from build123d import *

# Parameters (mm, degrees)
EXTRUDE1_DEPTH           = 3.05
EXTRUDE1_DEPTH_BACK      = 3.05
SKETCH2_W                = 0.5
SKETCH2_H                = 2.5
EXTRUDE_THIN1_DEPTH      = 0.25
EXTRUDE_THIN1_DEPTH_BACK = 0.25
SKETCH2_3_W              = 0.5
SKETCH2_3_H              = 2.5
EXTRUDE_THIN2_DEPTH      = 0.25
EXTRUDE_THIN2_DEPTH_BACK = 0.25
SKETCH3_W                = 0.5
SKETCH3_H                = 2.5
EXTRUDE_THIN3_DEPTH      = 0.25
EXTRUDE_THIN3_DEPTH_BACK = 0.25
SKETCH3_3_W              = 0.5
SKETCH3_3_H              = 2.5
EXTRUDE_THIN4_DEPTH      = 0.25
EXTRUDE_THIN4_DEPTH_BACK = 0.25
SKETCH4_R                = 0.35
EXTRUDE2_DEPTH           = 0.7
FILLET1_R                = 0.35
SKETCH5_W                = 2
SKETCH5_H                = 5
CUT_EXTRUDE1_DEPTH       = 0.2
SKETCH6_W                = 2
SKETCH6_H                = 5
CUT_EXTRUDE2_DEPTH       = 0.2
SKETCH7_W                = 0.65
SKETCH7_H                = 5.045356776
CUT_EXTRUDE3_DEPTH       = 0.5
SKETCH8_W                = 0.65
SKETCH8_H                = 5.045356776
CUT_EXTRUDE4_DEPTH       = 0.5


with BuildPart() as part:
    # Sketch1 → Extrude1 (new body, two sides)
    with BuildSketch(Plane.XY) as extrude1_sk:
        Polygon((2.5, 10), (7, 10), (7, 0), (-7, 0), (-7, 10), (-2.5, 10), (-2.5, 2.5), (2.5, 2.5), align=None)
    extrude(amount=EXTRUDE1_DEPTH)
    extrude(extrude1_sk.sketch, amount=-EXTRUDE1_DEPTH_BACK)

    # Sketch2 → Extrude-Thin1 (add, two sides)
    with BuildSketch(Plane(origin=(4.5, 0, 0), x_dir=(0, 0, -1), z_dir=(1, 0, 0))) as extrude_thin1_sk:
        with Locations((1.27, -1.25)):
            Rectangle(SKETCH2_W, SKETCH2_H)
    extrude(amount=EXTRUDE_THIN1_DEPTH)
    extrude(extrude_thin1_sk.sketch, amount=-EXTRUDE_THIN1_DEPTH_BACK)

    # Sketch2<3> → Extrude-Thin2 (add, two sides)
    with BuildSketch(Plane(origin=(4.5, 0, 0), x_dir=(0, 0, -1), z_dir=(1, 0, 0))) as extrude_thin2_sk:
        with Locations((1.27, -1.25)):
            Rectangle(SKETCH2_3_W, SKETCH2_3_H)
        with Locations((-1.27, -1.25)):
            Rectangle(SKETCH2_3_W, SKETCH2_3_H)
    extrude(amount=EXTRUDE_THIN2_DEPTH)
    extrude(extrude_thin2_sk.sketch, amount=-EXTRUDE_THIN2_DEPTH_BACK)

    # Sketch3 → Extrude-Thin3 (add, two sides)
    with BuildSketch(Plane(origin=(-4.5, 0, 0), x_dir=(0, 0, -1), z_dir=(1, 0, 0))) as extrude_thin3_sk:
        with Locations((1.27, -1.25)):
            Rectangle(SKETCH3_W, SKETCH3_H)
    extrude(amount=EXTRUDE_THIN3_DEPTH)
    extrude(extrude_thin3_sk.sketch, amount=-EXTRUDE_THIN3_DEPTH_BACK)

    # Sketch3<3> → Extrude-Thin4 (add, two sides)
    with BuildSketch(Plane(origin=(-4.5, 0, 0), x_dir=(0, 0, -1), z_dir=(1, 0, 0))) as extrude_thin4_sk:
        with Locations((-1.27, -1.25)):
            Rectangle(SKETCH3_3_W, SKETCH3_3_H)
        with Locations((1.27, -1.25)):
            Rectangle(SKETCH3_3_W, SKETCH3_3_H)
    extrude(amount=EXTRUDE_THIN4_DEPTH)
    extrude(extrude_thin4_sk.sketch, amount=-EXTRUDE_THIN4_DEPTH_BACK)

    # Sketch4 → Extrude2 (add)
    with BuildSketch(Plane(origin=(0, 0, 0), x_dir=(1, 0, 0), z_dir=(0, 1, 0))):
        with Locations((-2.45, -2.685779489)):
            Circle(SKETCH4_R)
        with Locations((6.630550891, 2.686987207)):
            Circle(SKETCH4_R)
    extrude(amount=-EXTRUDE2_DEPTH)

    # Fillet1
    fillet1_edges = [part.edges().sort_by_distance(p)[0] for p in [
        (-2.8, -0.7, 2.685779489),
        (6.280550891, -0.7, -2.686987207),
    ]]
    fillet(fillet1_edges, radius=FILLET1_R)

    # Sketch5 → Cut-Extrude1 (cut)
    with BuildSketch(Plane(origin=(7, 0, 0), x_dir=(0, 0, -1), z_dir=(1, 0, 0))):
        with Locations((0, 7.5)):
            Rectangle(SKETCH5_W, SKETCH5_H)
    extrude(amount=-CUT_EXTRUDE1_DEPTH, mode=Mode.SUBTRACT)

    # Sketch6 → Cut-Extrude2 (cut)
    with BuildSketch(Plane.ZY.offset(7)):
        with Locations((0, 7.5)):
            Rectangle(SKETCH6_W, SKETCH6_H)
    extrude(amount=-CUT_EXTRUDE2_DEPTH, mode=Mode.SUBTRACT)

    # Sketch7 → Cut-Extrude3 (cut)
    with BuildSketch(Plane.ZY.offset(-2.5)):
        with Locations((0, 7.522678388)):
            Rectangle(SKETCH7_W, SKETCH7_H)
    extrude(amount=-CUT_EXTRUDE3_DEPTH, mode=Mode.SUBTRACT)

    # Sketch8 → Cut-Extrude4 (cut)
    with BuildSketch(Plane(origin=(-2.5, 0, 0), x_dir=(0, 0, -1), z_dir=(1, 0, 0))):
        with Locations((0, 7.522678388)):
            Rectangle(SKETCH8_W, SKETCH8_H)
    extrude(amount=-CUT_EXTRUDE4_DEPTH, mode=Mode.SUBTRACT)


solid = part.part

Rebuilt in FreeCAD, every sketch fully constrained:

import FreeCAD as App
import Part
import Sketcher
from FreeCAD import Vector
Q = App.Units.Quantity


def edges_at(feature, points):
    """Names of the edges that pass closest to the given points."""
    edges = feature.Shape.Edges
    near = lambda p: min(range(len(edges)), key=lambda i: edges[i].distToShape(Part.Vertex(*p))[0])
    return sorted({f"Edge{near(p) + 1}" for p in points})

doc = App.newDocument("Part")
body = doc.addObject("PartDesign::Body", "Body")

sketch1 = body.newObject("Sketcher::SketchObject", "Sketch")
sketch1.AttachmentSupport = (doc.getObject("XY_Plane"), [""])
sketch1.MapMode = "FlatFace"
sketch1.addGeometry(Part.LineSegment(Vector(7, 10, 0), Vector(2.5, 10, 0)), False)
sketch1.addGeometry(Part.LineSegment(Vector(2.5, 10, 0), Vector(2.5, 2.5, 0)), False)
sketch1.addGeometry(Part.LineSegment(Vector(2.5, 2.5, 0), Vector(-2.5, 2.5, 0)), False)
sketch1.addGeometry(Part.LineSegment(Vector(-2.5, 2.5, 0), Vector(-2.5, 10, 0)), False)
sketch1.addGeometry(Part.LineSegment(Vector(-2.5, 10, 0), Vector(-7, 10, 0)), False)
sketch1.addGeometry(Part.LineSegment(Vector(-7, 10, 0), Vector(-7, 0, 0)), False)
sketch1.addGeometry(Part.LineSegment(Vector(-7, 0, 0), Vector(7, 0, 0)), False)
sketch1.addGeometry(Part.LineSegment(Vector(7, 0, 0), Vector(7, 10, 0)), False)
sketch1.addConstraint(Sketcher.Constraint("Coincident", 0, 2, 1, 1))
sketch1.addConstraint(Sketcher.Constraint("Coincident", 1, 2, 2, 1))
sketch1.addConstraint(Sketcher.Constraint("Coincident", 2, 2, 3, 1))
sketch1.addConstraint(Sketcher.Constraint("Coincident", 3, 2, 4, 1))
sketch1.addConstraint(Sketcher.Constraint("Coincident", 4, 2, 5, 1))
sketch1.addConstraint(Sketcher.Constraint("Coincident", 5, 2, 6, 1))
sketch1.addConstraint(Sketcher.Constraint("Coincident", 6, 2, 7, 1))
sketch1.addConstraint(Sketcher.Constraint("Coincident", 7, 2, 0, 1))
sketch1.addConstraint(Sketcher.Constraint("Horizontal", 0))
sketch1.addConstraint(Sketcher.Constraint("Vertical", 1))
sketch1.addConstraint(Sketcher.Constraint("Horizontal", 2))
sketch1.addConstraint(Sketcher.Constraint("Vertical", 3))
sketch1.addConstraint(Sketcher.Constraint("Horizontal", 4))
sketch1.addConstraint(Sketcher.Constraint("Vertical", 5))
sketch1.addConstraint(Sketcher.Constraint("Horizontal", 6))
sketch1.addConstraint(Sketcher.Constraint("Vertical", 7))
sketch1.addConstraint(Sketcher.Constraint("Symmetric", 5, 2, 6, 2, -1, 1))
sketch1.addConstraint(Sketcher.Constraint("Symmetric", 0, 2, 3, 2, -2))
sketch1.addConstraint(Sketcher.Constraint("DistanceX", 2, 2, 2, 1, Q("5 mm")))
sketch1.addConstraint(Sketcher.Constraint("DistanceX", 6, 1, 6, 2, Q("14 mm")))
sketch1.addConstraint(Sketcher.Constraint("DistanceY", 5, 2, 5, 1, Q("10 mm")))
sketch1.addConstraint(Sketcher.Constraint("DistanceY", 1, 2, 1, 1, Q("7.5 mm")))
pad1 = body.newObject("PartDesign::Pad", "Pad")
pad1.Profile = sketch1
pad1.Type = "TwoLengths"
pad1.Length = 3.05
pad1.Length2 = 3.05

sketch2 = body.newObject("Sketcher::SketchObject", "Sketch001")
sketch2.AttachmentSupport = (doc.getObject("YZ_Plane"), [""])
sketch2.MapMode = "FlatFace"
sketch2.AttachmentOffset = App.Placement(Vector(0, 0, 4.5), App.Rotation())
sketch2.addGeometry(Part.LineSegment(Vector(0, -1, 0), Vector(-2.5, -1, 0)), False)
sketch2.addGeometry(Part.LineSegment(Vector(-2.5, -1, 0), Vector(-2.5, -1.5, 0)), False)
sketch2.addGeometry(Part.LineSegment(Vector(-2.5, -1.5, 0), Vector(0, -1.5, 0)), False)
sketch2.addGeometry(Part.LineSegment(Vector(0, -1.5, 0), Vector(0, -1, 0)), False)
sketch2.addConstraint(Sketcher.Constraint("Coincident", 0, 2, 1, 1))
sketch2.addConstraint(Sketcher.Constraint("Coincident", 1, 2, 2, 1))
sketch2.addConstraint(Sketcher.Constraint("Coincident", 2, 2, 3, 1))
sketch2.addConstraint(Sketcher.Constraint("Coincident", 3, 2, 0, 1))
sketch2.addConstraint(Sketcher.Constraint("Horizontal", 0))
sketch2.addConstraint(Sketcher.Constraint("Vertical", 1))
sketch2.addConstraint(Sketcher.Constraint("Horizontal", 2))
sketch2.addConstraint(Sketcher.Constraint("Vertical", 3))
sketch2.addConstraint(Sketcher.Constraint("PointOnObject", 2, 2, -2))
sketch2.addConstraint(Sketcher.Constraint("DistanceX", 0, 2, 0, 1, Q("2.5 mm")))
sketch2.addConstraint(Sketcher.Constraint("DistanceY", 1, 2, 1, 1, Q("0.5 mm")))
sketch2.addConstraint(Sketcher.Constraint("DistanceY", 0, 2, -1, 1, Q("1.02 mm")))
pad2 = body.newObject("PartDesign::Pad", "Pad001")
pad2.Profile = sketch2
pad2.Type = "TwoLengths"
pad2.Length = 0.25
pad2.Length2 = 0.25

sketch3 = body.newObject("Sketcher::SketchObject", "Sketch002")
sketch3.AttachmentSupport = (doc.getObject("YZ_Plane"), [""])
sketch3.MapMode = "FlatFace"
sketch3.AttachmentOffset = App.Placement(Vector(0, 0, 4.5), App.Rotation())
sketch3.addGeometry(Part.LineSegment(Vector(0, -1, 0), Vector(-2.5, -1, 0)), False)
sketch3.addGeometry(Part.LineSegment(Vector(-2.5, -1, 0), Vector(-2.5, -1.5, 0)), False)
sketch3.addGeometry(Part.LineSegment(Vector(-2.5, -1.5, 0), Vector(0, -1.5, 0)), False)
sketch3.addGeometry(Part.LineSegment(Vector(0, -1.5, 0), Vector(0, -1, 0)), False)
sketch3.addGeometry(Part.LineSegment(Vector(0, 1.5, 0), Vector(-2.5, 1.5, 0)), False)
sketch3.addGeometry(Part.LineSegment(Vector(-2.5, 1.5, 0), Vector(-2.5, 1, 0)), False)
sketch3.addGeometry(Part.LineSegment(Vector(-2.5, 1, 0), Vector(0, 1, 0)), False)
sketch3.addGeometry(Part.LineSegment(Vector(0, 1, 0), Vector(0, 1.5, 0)), False)
sketch3.addConstraint(Sketcher.Constraint("Coincident", 0, 2, 1, 1))
sketch3.addConstraint(Sketcher.Constraint("Coincident", 1, 2, 2, 1))
sketch3.addConstraint(Sketcher.Constraint("Coincident", 2, 2, 3, 1))
sketch3.addConstraint(Sketcher.Constraint("Coincident", 3, 2, 0, 1))
sketch3.addConstraint(Sketcher.Constraint("Coincident", 4, 2, 5, 1))
sketch3.addConstraint(Sketcher.Constraint("Coincident", 5, 2, 6, 1))
sketch3.addConstraint(Sketcher.Constraint("Coincident", 6, 2, 7, 1))
sketch3.addConstraint(Sketcher.Constraint("Coincident", 7, 2, 4, 1))
sketch3.addConstraint(Sketcher.Constraint("Horizontal", 0))
sketch3.addConstraint(Sketcher.Constraint("Vertical", 1))
sketch3.addConstraint(Sketcher.Constraint("Horizontal", 2))
sketch3.addConstraint(Sketcher.Constraint("Vertical", 3))
sketch3.addConstraint(Sketcher.Constraint("Horizontal", 4))
sketch3.addConstraint(Sketcher.Constraint("Vertical", 5))
sketch3.addConstraint(Sketcher.Constraint("Horizontal", 6))
sketch3.addConstraint(Sketcher.Constraint("Vertical", 7))
sketch3.addConstraint(Sketcher.Constraint("Symmetric", 3, 2, 6, 2, -1, 1))
sketch3.addConstraint(Sketcher.Constraint("Symmetric", 1, 2, 4, 2, -1))
sketch3.addConstraint(Sketcher.Constraint("PointOnObject", 2, 2, -2))
sketch3.addConstraint(Sketcher.Constraint("DistanceX", 0, 2, 0, 1, Q("2.5 mm")))
sketch3.addConstraint(Sketcher.Constraint("DistanceY", 1, 2, 1, 1, Q("0.5 mm")))
sketch3.addConstraint(Sketcher.Constraint("DistanceY", 0, 2, -1, 1, Q("1.02 mm")))
pad3 = body.newObject("PartDesign::Pad", "Pad002")
pad3.Profile = sketch3
pad3.Type = "TwoLengths"
pad3.Length = 0.25
pad3.Length2 = 0.25

sketch4 = body.newObject("Sketcher::SketchObject", "Sketch003")
sketch4.AttachmentSupport = (doc.getObject("YZ_Plane"), [""])
sketch4.MapMode = "FlatFace"
sketch4.AttachmentOffset = App.Placement(Vector(0, 0, -4.5), App.Rotation())
sketch4.addGeometry(Part.LineSegment(Vector(0, -1, 0), Vector(-2.5, -1, 0)), False)
sketch4.addGeometry(Part.LineSegment(Vector(-2.5, -1, 0), Vector(-2.5, -1.5, 0)), False)
sketch4.addGeometry(Part.LineSegment(Vector(-2.5, -1.5, 0), Vector(0, -1.5, 0)), False)
sketch4.addGeometry(Part.LineSegment(Vector(0, -1.5, 0), Vector(0, -1, 0)), False)
sketch4.addConstraint(Sketcher.Constraint("Coincident", 0, 2, 1, 1))
sketch4.addConstraint(Sketcher.Constraint("Coincident", 1, 2, 2, 1))
sketch4.addConstraint(Sketcher.Constraint("Coincident", 2, 2, 3, 1))
sketch4.addConstraint(Sketcher.Constraint("Coincident", 3, 2, 0, 1))
sketch4.addConstraint(Sketcher.Constraint("Horizontal", 0))
sketch4.addConstraint(Sketcher.Constraint("Vertical", 1))
sketch4.addConstraint(Sketcher.Constraint("Horizontal", 2))
sketch4.addConstraint(Sketcher.Constraint("Vertical", 3))
sketch4.addConstraint(Sketcher.Constraint("PointOnObject", 2, 2, -2))
sketch4.addConstraint(Sketcher.Constraint("DistanceX", 0, 2, 0, 1, Q("2.5 mm")))
sketch4.addConstraint(Sketcher.Constraint("DistanceY", 1, 2, 1, 1, Q("0.5 mm")))
sketch4.addConstraint(Sketcher.Constraint("DistanceY", 0, 2, -1, 1, Q("1.02 mm")))
pad4 = body.newObject("PartDesign::Pad", "Pad003")
pad4.Profile = sketch4
pad4.Type = "TwoLengths"
pad4.Length = 0.25
pad4.Length2 = 0.25

sketch5 = body.newObject("Sketcher::SketchObject", "Sketch004")
sketch5.AttachmentSupport = (doc.getObject("YZ_Plane"), [""])
sketch5.MapMode = "FlatFace"
sketch5.AttachmentOffset = App.Placement(Vector(0, 0, -4.5), App.Rotation())
sketch5.addGeometry(Part.LineSegment(Vector(0, 1.5, 0), Vector(-2.5, 1.5, 0)), False)
sketch5.addGeometry(Part.LineSegment(Vector(-2.5, 1.5, 0), Vector(-2.5, 1, 0)), False)
sketch5.addGeometry(Part.LineSegment(Vector(-2.5, 1, 0), Vector(0, 1, 0)), False)
sketch5.addGeometry(Part.LineSegment(Vector(0, 1, 0), Vector(0, 1.5, 0)), False)
sketch5.addGeometry(Part.LineSegment(Vector(0, -1, 0), Vector(-2.5, -1, 0)), False)
sketch5.addGeometry(Part.LineSegment(Vector(-2.5, -1, 0), Vector(-2.5, -1.5, 0)), False)
sketch5.addGeometry(Part.LineSegment(Vector(-2.5, -1.5, 0), Vector(0, -1.5, 0)), False)
sketch5.addGeometry(Part.LineSegment(Vector(0, -1.5, 0), Vector(0, -1, 0)), False)
sketch5.addConstraint(Sketcher.Constraint("Coincident", 0, 2, 1, 1))
sketch5.addConstraint(Sketcher.Constraint("Coincident", 1, 2, 2, 1))
sketch5.addConstraint(Sketcher.Constraint("Coincident", 2, 2, 3, 1))
sketch5.addConstraint(Sketcher.Constraint("Coincident", 3, 2, 0, 1))
sketch5.addConstraint(Sketcher.Constraint("Coincident", 4, 2, 5, 1))
sketch5.addConstraint(Sketcher.Constraint("Coincident", 5, 2, 6, 1))
sketch5.addConstraint(Sketcher.Constraint("Coincident", 6, 2, 7, 1))
sketch5.addConstraint(Sketcher.Constraint("Coincident", 7, 2, 4, 1))
sketch5.addConstraint(Sketcher.Constraint("Horizontal", 0))
sketch5.addConstraint(Sketcher.Constraint("Vertical", 1))
sketch5.addConstraint(Sketcher.Constraint("Horizontal", 2))
sketch5.addConstraint(Sketcher.Constraint("Vertical", 3))
sketch5.addConstraint(Sketcher.Constraint("Horizontal", 4))
sketch5.addConstraint(Sketcher.Constraint("Vertical", 5))
sketch5.addConstraint(Sketcher.Constraint("Horizontal", 6))
sketch5.addConstraint(Sketcher.Constraint("Vertical", 7))
sketch5.addConstraint(Sketcher.Constraint("Symmetric", 3, 2, 6, 2, -1, 1))
sketch5.addConstraint(Sketcher.Constraint("Symmetric", 1, 2, 4, 2, -1))
sketch5.addConstraint(Sketcher.Constraint("PointOnObject", 2, 2, -2))
sketch5.addConstraint(Sketcher.Constraint("DistanceX", 0, 2, 0, 1, Q("2.5 mm")))
sketch5.addConstraint(Sketcher.Constraint("DistanceY", 1, 2, 1, 1, Q("0.5 mm")))
sketch5.addConstraint(Sketcher.Constraint("DistanceY", -1, 1, 0, 2, Q("1.52 mm")))
pad5 = body.newObject("PartDesign::Pad", "Pad004")
pad5.Profile = sketch5
pad5.Type = "TwoLengths"
pad5.Length = 0.25
pad5.Length2 = 0.25

sketch6 = body.newObject("Sketcher::SketchObject", "Sketch005")
sketch6.AttachmentSupport = (doc.getObject("XZ_Plane"), [""])
sketch6.MapMode = "FlatFace"
sketch6.addGeometry(Part.Circle(Vector(-2.45, 2.69, 0), Vector(0, 0, 1), 0.35), False)
sketch6.addGeometry(Part.Circle(Vector(6.63, -2.69, 0), Vector(0, 0, 1), 0.35), False)
sketch6.addConstraint(Sketcher.Constraint("Equal", 0, 1))
sketch6.addConstraint(Sketcher.Constraint("Diameter", 0, Q("0.7 mm")))
sketch6.addConstraint(Sketcher.Constraint("DistanceX", 0, 3, -1, 1, Q("2.45 mm")))
sketch6.addConstraint(Sketcher.Constraint("DistanceY", -1, 1, 0, 3, Q("2.685779 mm")))
sketch6.addConstraint(Sketcher.Constraint("DistanceX", -1, 1, 1, 3, Q("6.630551 mm")))
sketch6.addConstraint(Sketcher.Constraint("DistanceY", 1, 3, -1, 1, Q("2.686987 mm")))
pad6 = body.newObject("PartDesign::Pad", "Pad005")
pad6.Profile = sketch6
pad6.Length = 0.7
doc.recompute()

fillet = body.newObject("PartDesign::Fillet", "Fillet")
fillet.Base = (pad6, edges_at(pad6, [(-2.8, -0.7, 2.686), (6.281, -0.7, -2.687)]))
fillet.Radius = 0.35

sketch7 = body.newObject("Sketcher::SketchObject", "Sketch006")
sketch7.AttachmentSupport = (doc.getObject("YZ_Plane"), [""])
sketch7.MapMode = "FlatFace"
sketch7.AttachmentOffset = App.Placement(Vector(0, 0, 7), App.Rotation())
sketch7.addGeometry(Part.LineSegment(Vector(10, 1, 0), Vector(5, 1, 0)), False)
sketch7.addGeometry(Part.LineSegment(Vector(5, 1, 0), Vector(5, -1, 0)), False)
sketch7.addGeometry(Part.LineSegment(Vector(5, -1, 0), Vector(10, -1, 0)), False)
sketch7.addGeometry(Part.LineSegment(Vector(10, -1, 0), Vector(10, 1, 0)), False)
sketch7.addConstraint(Sketcher.Constraint("Coincident", 0, 2, 1, 1))
sketch7.addConstraint(Sketcher.Constraint("Coincident", 1, 2, 2, 1))
sketch7.addConstraint(Sketcher.Constraint("Coincident", 2, 2, 3, 1))
sketch7.addConstraint(Sketcher.Constraint("Coincident", 3, 2, 0, 1))
sketch7.addConstraint(Sketcher.Constraint("Horizontal", 0))
sketch7.addConstraint(Sketcher.Constraint("Vertical", 1))
sketch7.addConstraint(Sketcher.Constraint("Horizontal", 2))
sketch7.addConstraint(Sketcher.Constraint("Vertical", 3))
sketch7.addConstraint(Sketcher.Constraint("DistanceX", 0, 2, 0, 1, Q("5 mm")))
sketch7.addConstraint(Sketcher.Constraint("DistanceY", 1, 2, 1, 1, Q("2 mm")))
sketch7.addConstraint(Sketcher.Constraint("DistanceX", -1, 1, 0, 2, Q("5 mm")))
sketch7.addConstraint(Sketcher.Constraint("DistanceY", -1, 1, 0, 2, Q("1 mm")))
pocket1 = body.newObject("PartDesign::Pocket", "Pocket")
pocket1.Profile = sketch7
pocket1.Length = 0.2

sketch8 = body.newObject("Sketcher::SketchObject", "Sketch007")
sketch8.AttachmentSupport = (doc.getObject("YZ_Plane"), [""])
sketch8.MapMode = "FlatFace"
sketch8.AttachmentOffset = App.Placement(Vector(0, 0, -7), App.Rotation())
sketch8.addGeometry(Part.LineSegment(Vector(10, -1, 0), Vector(5, -1, 0)), False)
sketch8.addGeometry(Part.LineSegment(Vector(5, -1, 0), Vector(5, 1, 0)), False)
sketch8.addGeometry(Part.LineSegment(Vector(5, 1, 0), Vector(10, 1, 0)), False)
sketch8.addGeometry(Part.LineSegment(Vector(10, 1, 0), Vector(10, -1, 0)), False)
sketch8.addConstraint(Sketcher.Constraint("Coincident", 0, 2, 1, 1))
sketch8.addConstraint(Sketcher.Constraint("Coincident", 1, 2, 2, 1))
sketch8.addConstraint(Sketcher.Constraint("Coincident", 2, 2, 3, 1))
sketch8.addConstraint(Sketcher.Constraint("Coincident", 3, 2, 0, 1))
sketch8.addConstraint(Sketcher.Constraint("Horizontal", 0))
sketch8.addConstraint(Sketcher.Constraint("Vertical", 1))
sketch8.addConstraint(Sketcher.Constraint("Horizontal", 2))
sketch8.addConstraint(Sketcher.Constraint("Vertical", 3))
sketch8.addConstraint(Sketcher.Constraint("DistanceX", 0, 2, 0, 1, Q("5 mm")))
sketch8.addConstraint(Sketcher.Constraint("DistanceY", 1, 1, 1, 2, Q("2 mm")))
sketch8.addConstraint(Sketcher.Constraint("DistanceX", -1, 1, 0, 2, Q("5 mm")))
sketch8.addConstraint(Sketcher.Constraint("DistanceY", 0, 2, -1, 1, Q("1 mm")))
pocket2 = body.newObject("PartDesign::Pocket", "Pocket001")
pocket2.Profile = sketch8
pocket2.Length = 0.2
pocket2.Reversed = True

sketch9 = body.newObject("Sketcher::SketchObject", "Sketch008")
sketch9.AttachmentSupport = (doc.getObject("YZ_Plane"), [""])
sketch9.MapMode = "FlatFace"
sketch9.AttachmentOffset = App.Placement(Vector(0, 0, 2.5), App.Rotation())
sketch9.addGeometry(Part.LineSegment(Vector(10, -0.3, 0), Vector(5, -0.3, 0)), False)
sketch9.addGeometry(Part.LineSegment(Vector(5, -0.3, 0), Vector(5, 0.3, 0)), False)
sketch9.addGeometry(Part.LineSegment(Vector(5, 0.3, 0), Vector(10, 0.3, 0)), False)
sketch9.addGeometry(Part.LineSegment(Vector(10, 0.3, 0), Vector(10, -0.3, 0)), False)
sketch9.addConstraint(Sketcher.Constraint("Coincident", 0, 2, 1, 1))
sketch9.addConstraint(Sketcher.Constraint("Coincident", 1, 2, 2, 1))
sketch9.addConstraint(Sketcher.Constraint("Coincident", 2, 2, 3, 1))
sketch9.addConstraint(Sketcher.Constraint("Coincident", 3, 2, 0, 1))
sketch9.addConstraint(Sketcher.Constraint("Horizontal", 0))
sketch9.addConstraint(Sketcher.Constraint("Vertical", 1))
sketch9.addConstraint(Sketcher.Constraint("Horizontal", 2))
sketch9.addConstraint(Sketcher.Constraint("Vertical", 3))
sketch9.addConstraint(Sketcher.Constraint("DistanceX", -1, 1, 0, 2, Q("5 mm")))
sketch9.addConstraint(Sketcher.Constraint("DistanceY", 1, 1, 1, 2, Q("0.65 mm")))
sketch9.addConstraint(Sketcher.Constraint("DistanceY", 0, 2, -1, 1, Q("0.325 mm")))
sketch9.addConstraint(Sketcher.Constraint("DistanceX", 0, 2, 0, 1, Q("5.045357 mm")))
pocket3 = body.newObject("PartDesign::Pocket", "Pocket002")
pocket3.Profile = sketch9
pocket3.Length = 0.5
pocket3.Reversed = True

sketch10 = body.newObject("Sketcher::SketchObject", "Sketch009")
sketch10.AttachmentSupport = (doc.getObject("YZ_Plane"), [""])
sketch10.MapMode = "FlatFace"
sketch10.AttachmentOffset = App.Placement(Vector(0, 0, -2.5), App.Rotation())
sketch10.addGeometry(Part.LineSegment(Vector(10, 0.3, 0), Vector(5, 0.3, 0)), False)
sketch10.addGeometry(Part.LineSegment(Vector(5, 0.3, 0), Vector(5, -0.3, 0)), False)
sketch10.addGeometry(Part.LineSegment(Vector(5, -0.3, 0), Vector(10, -0.3, 0)), False)
sketch10.addGeometry(Part.LineSegment(Vector(10, -0.3, 0), Vector(10, 0.3, 0)), False)
sketch10.addConstraint(Sketcher.Constraint("Coincident", 0, 2, 1, 1))
sketch10.addConstraint(Sketcher.Constraint("Coincident", 1, 2, 2, 1))
sketch10.addConstraint(Sketcher.Constraint("Coincident", 2, 2, 3, 1))
sketch10.addConstraint(Sketcher.Constraint("Coincident", 3, 2, 0, 1))
sketch10.addConstraint(Sketcher.Constraint("Horizontal", 0))
sketch10.addConstraint(Sketcher.Constraint("Vertical", 1))
sketch10.addConstraint(Sketcher.Constraint("Horizontal", 2))
sketch10.addConstraint(Sketcher.Constraint("Vertical", 3))
sketch10.addConstraint(Sketcher.Constraint("DistanceX", -1, 1, 0, 2, Q("5 mm")))
sketch10.addConstraint(Sketcher.Constraint("DistanceY", 1, 2, 1, 1, Q("0.65 mm")))
sketch10.addConstraint(Sketcher.Constraint("DistanceY", -1, 1, 0, 2, Q("0.325 mm")))
sketch10.addConstraint(Sketcher.Constraint("DistanceX", 0, 2, 0, 1, Q("5.045357 mm")))
pocket4 = body.newObject("PartDesign::Pocket", "Pocket003")
pocket4.Profile = sketch10
pocket4.Length = 0.5

doc.recompute()
